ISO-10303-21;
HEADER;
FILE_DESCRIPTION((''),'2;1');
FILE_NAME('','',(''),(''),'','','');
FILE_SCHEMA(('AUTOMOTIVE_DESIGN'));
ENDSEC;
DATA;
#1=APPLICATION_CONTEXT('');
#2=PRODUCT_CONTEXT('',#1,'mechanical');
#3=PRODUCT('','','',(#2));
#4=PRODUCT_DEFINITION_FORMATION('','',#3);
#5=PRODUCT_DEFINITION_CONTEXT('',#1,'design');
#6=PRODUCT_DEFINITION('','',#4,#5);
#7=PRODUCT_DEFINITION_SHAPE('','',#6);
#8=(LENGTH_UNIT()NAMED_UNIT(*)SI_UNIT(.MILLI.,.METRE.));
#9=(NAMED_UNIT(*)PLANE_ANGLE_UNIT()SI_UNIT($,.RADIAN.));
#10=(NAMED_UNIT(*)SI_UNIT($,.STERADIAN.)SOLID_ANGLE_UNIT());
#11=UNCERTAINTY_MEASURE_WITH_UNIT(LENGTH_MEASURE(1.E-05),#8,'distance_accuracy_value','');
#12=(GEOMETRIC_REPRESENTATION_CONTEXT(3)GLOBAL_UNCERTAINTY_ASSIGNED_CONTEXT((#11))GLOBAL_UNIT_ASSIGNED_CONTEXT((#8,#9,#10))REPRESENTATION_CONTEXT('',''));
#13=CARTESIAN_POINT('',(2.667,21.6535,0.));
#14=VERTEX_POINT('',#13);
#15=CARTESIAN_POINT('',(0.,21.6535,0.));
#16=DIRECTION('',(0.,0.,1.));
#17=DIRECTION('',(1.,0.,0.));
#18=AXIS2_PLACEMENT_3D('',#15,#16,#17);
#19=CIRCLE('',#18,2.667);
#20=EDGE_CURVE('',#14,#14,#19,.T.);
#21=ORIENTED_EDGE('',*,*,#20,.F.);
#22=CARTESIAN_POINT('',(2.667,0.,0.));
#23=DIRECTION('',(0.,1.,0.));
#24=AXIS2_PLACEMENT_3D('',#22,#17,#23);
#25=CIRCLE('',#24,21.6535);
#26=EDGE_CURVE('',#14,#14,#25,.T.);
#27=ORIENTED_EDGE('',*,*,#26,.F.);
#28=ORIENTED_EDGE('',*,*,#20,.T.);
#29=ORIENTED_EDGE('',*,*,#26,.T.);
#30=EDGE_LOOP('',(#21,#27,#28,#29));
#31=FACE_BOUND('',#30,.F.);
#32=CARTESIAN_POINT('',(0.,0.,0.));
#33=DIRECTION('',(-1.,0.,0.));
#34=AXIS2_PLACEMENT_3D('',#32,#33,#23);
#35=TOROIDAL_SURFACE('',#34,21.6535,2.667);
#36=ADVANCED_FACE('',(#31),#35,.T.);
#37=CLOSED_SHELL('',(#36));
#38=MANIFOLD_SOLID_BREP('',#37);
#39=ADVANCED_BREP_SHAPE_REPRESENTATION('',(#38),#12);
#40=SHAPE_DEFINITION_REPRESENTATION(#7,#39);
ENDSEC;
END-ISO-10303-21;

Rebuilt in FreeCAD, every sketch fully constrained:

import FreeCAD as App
import Part
import Sketcher
from FreeCAD import Vector
Q = App.Units.Quantity

doc = App.newDocument("Part")
body = doc.addObject("PartDesign::Body", "Body")

# Sketch on XY plane
sketch1 = doc.addObject("Sketcher::SketchObject", "Sketch")
body.addObject(sketch1)
sketch1.AttachmentSupport = (doc.XY_Plane, [""])
sketch1.MapMode = "FlatFace"
sketch1.addGeometry(Part.Circle(Vector(0, 21.6535, 0), Vector(0, 0, 1), 2.667), False)
sketch1.addConstraint([
    Sketcher.Constraint("PointOnObject", 0, 3, -2),
    Sketcher.Constraint("Diameter", 0, Q("0.21 in")),
    Sketcher.Constraint("DistanceY", -1, 1, 0, 3, Q("0.8525 in")),
])
revolution = doc.addObject("PartDesign::Revolution", "Revolution")
body.addObject(revolution)
revolution.Profile = sketch1
revolution.ReferenceAxis = (sketch1, ["H_Axis"])
revolution.Angle = 360

doc.recompute()
